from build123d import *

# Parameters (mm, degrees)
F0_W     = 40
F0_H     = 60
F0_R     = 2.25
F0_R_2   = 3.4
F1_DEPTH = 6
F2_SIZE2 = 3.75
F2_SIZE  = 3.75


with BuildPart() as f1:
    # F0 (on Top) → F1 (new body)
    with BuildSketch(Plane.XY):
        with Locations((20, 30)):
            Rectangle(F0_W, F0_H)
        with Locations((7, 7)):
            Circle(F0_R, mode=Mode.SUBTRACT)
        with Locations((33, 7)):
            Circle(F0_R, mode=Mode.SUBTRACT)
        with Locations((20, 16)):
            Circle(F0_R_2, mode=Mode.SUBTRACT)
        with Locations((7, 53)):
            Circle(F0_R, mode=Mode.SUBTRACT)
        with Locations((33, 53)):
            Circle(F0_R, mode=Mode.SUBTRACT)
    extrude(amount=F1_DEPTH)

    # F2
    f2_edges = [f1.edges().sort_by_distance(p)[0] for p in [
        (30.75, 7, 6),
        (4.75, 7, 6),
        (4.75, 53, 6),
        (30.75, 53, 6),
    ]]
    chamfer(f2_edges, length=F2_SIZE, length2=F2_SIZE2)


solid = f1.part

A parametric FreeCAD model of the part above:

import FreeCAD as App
import Part
import Sketcher
Q = App.Units.Quantity


def edges_at(feature, points):
    """Names of the edges that pass closest to the given points."""
    edges = feature.Shape.Edges
    near = lambda p: min(range(len(edges)), key=lambda i: edges[i].distToShape(Part.Vertex(*p))[0])
    return sorted({f"Edge{near(p) + 1}" for p in points})


def add_polygon(sketch, points):
    """Adds a closed chain of lines whose ends are joined by coincident constraints."""
    first, n = sketch.GeometryCount, len(points)
    for a, b in zip(points, points[1:] + points[:1]):
        sketch.addGeometry(Part.LineSegment(App.Vector(*a, 0), App.Vector(*b, 0)), False)
    for i in range(n):
        sketch.addConstraint(Sketcher.Constraint("Coincident", first + i, 2, first + (i + 1) % n, 1))

doc = App.newDocument("Part")
body = doc.addObject("PartDesign::Body", "Body")

# Sketch on XY plane
sketch1 = body.newObject("Sketcher::SketchObject", "Sketch")
sketch1.AttachmentSupport = (doc.getObject("XY_Plane"), [""])
sketch1.MapMode = "FlatFace"
add_polygon(sketch1, [(0, 60), (0, 0), (40, 0), (40, 60)])  # lines 0-3
sketch1.addGeometry(Part.Circle(App.Vector(7, 7, 0), App.Vector(0, 0, 1), 2.2), False)  # 4
sketch1.addGeometry(Part.Circle(App.Vector(20, 16, 0), App.Vector(0, 0, 1), 3.4), False)  # 5
sketch1.addGeometry(Part.Circle(App.Vector(33, 7, 0), App.Vector(0, 0, 1), 2.2), False)  # 6
sketch1.addGeometry(Part.Circle(App.Vector(7, 53, 0), App.Vector(0, 0, 1), 2.2), False)  # 7
sketch1.addGeometry(Part.Circle(App.Vector(33, 53, 0), App.Vector(0, 0, 1), 2.2), False)  # 8
sketch1.addConstraint([
    Sketcher.Constraint("Vertical", 0),
    Sketcher.Constraint("Horizontal", 1),
    Sketcher.Constraint("Vertical", 2),
    Sketcher.Constraint("Horizontal", 3),
    Sketcher.Constraint("Coincident", 0, 2, -1, 1),
    Sketcher.Constraint("Equal", 4, 6),
    Sketcher.Constraint("Equal", 6, 7),
    Sketcher.Constraint("Equal", 7, 8),
    Sketcher.Constraint("Horizontal", 4, 3, 6, 3),
    Sketcher.Constraint("Horizontal", 7, 3, 8, 3),
    Sketcher.Constraint("Vertical", 4, 3, 7, 3),
    Sketcher.Constraint("Vertical", 6, 3, 8, 3),
    Sketcher.Constraint("Diameter", 4, Q("4.5 mm")),
    Sketcher.Constraint("Diameter", 5, Q("6.8 mm")),
    Sketcher.Constraint("DistanceX", 1, 1, 1, 2, Q("40 mm")),
    Sketcher.Constraint("DistanceY", 0, 2, 0, 1, Q("60 mm")),
    Sketcher.Constraint("DistanceX", -1, 1, 4, 3, Q("7 mm")),
    Sketcher.Constraint("DistanceY", -1, 1, 4, 3, Q("7 mm")),
    Sketcher.Constraint("DistanceX", -1, 1, 5, 3, Q("20 mm")),
    Sketcher.Constraint("DistanceY", -1, 1, 5, 3, Q("16 mm")),
    Sketcher.Constraint("DistanceX", -1, 1, 6, 3, Q("33 mm")),
    Sketcher.Constraint("DistanceY", -1, 1, 7, 3, Q("53 mm")),
])
pad1 = body.newObject("PartDesign::Pad", "Pad")
pad1.Profile = sketch1
pad1.Length = 6
doc.recompute()

chamfer = body.newObject("PartDesign::Chamfer", "Chamfer")
chamfer.Base = (pad1, edges_at(pad1, [
    (30.75, 7, 6),
    (4.75, 7, 6),
    (4.75, 53, 6),
    (30.75, 53, 6),
]))
chamfer.ChamferType = "Two distances"
chamfer.Size = 3.75
chamfer.Size2 = 3.75

doc.recompute()
